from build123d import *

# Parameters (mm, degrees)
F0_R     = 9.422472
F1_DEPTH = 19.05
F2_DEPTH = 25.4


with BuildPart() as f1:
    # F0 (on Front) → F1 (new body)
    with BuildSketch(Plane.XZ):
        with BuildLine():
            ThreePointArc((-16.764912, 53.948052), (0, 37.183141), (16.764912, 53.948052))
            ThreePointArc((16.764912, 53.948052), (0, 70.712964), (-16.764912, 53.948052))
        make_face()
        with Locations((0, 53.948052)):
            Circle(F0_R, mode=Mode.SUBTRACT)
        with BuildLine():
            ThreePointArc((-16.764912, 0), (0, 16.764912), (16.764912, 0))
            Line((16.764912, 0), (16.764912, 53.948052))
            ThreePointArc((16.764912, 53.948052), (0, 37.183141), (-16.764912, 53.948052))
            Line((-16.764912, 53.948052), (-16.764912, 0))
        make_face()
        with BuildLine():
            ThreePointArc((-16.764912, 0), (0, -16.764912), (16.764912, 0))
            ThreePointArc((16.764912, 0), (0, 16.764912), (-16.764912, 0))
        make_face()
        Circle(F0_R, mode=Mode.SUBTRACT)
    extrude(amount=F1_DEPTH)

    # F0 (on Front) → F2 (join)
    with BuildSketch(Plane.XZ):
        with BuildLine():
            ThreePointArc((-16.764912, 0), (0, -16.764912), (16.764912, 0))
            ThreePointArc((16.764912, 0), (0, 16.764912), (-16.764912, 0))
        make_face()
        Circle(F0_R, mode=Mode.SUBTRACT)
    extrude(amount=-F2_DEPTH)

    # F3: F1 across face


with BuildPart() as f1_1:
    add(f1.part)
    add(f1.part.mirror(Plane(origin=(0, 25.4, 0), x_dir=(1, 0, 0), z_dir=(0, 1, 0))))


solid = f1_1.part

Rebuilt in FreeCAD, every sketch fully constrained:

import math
import FreeCAD as App
import Part
import Sketcher
from FreeCAD import Vector

doc = App.newDocument("Part")
params = doc.addObject("Spreadsheet::Sheet", "Params")
for row, (alias, value) in enumerate([
    ("pad1_length", "0.75 in"),
    ("pad2_length", "1 in"),
], start=1):
    params.set(f"A{row}", alias)
    params.set(f"B{row}", "=" + value)
    params.setAlias(f"B{row}", alias)

body = doc.addObject("PartDesign::Body", "Body")

# Sketch on XZ plane
sketch1 = body.newObject("Sketcher::SketchObject", "Sketch")
sketch1.AttachmentSupport = (doc.getObject("XZ_Plane"), [""])
sketch1.MapMode = "FlatFace"
sketch1.addGeometry([
    Part.ArcOfCircle(Part.Circle(Vector(0, 53.948052, 0), Vector(0, 0, 1), 16.764912), math.radians(0), math.radians(180)),  # 0
    Part.LineSegment(Vector(-16.764912, 53.948052, 0), Vector(-16.764912, 0, 0)),  # 1
    Part.ArcOfCircle(Part.Circle(Vector(0, 0, 0), Vector(0, 0, 1), 16.764912), math.radians(180), math.radians(360)),  # 2
    Part.LineSegment(Vector(16.764912, 0, 0), Vector(16.764912, 53.948052, 0)),  # 3
    Part.Circle(Vector(0, 0, 0), Vector(0, 0, 1), 9.422472),  # 4
    Part.Circle(Vector(0, 53.948052, 0), Vector(0, 0, 1), 9.422472),  # 5
], False)
sketch1.addConstraint([
    Sketcher.Constraint("Tangent", 0, 2, 1, 1),
    Sketcher.Constraint("Tangent", 1, 2, 2, 1),
    Sketcher.Constraint("Tangent", 2, 2, 3, 1),
    Sketcher.Constraint("Tangent", 3, 2, 0, 1),
    Sketcher.Constraint("Vertical", 1),
    Sketcher.Constraint("Vertical", 3),
    Sketcher.Constraint("Coincident", 2, 3, -1, 1),
    Sketcher.Constraint("Coincident", 4, 3, -1, 1),
    Sketcher.Constraint("Coincident", 5, 3, 0, 3),
    Sketcher.Constraint("Equal", 4, 5),
    Sketcher.Constraint("Radius", 0, 16.764912),
    Sketcher.Constraint("Diameter", 4, 18.844944),
    Sketcher.Constraint("DistanceY", 1, 2, 1, 1, 53.948052),
])
pad1 = body.newObject("PartDesign::Pad", "Pad")
pad1.Profile = sketch1
pad1.setExpression("Length", "Params.pad1_length")

# Sketch on XZ plane
sketch2 = body.newObject("Sketcher::SketchObject", "Sketch001")
sketch2.AttachmentSupport = (doc.getObject("XZ_Plane"), [""])
sketch2.MapMode = "FlatFace"
sketch2.addGeometry([
    Part.Circle(Vector(0, 0, 0), Vector(0, 0, 1), 16.764912),
    Part.Circle(Vector(0, 0, 0), Vector(0, 0, 1), 9.422472),
], False)
sketch2.addConstraint([
    Sketcher.Constraint("Coincident", 0, 3, -1, 1),
    Sketcher.Constraint("Coincident", 1, 3, -1, 1),
    Sketcher.Constraint("Diameter", 0, 33.529824),
    Sketcher.Constraint("Diameter", 1, 18.844944),
])
pad2 = body.newObject("PartDesign::Pad", "Pad001")
pad2.Profile = sketch2
pad2.setExpression("Length", "Params.pad2_length")
pad2.Reversed = True
body2 = doc.addObject("PartDesign::Body", "Body001")
doc.recompute()

body2.BaseFeature = body
doc.recompute()

mirroring = doc.addObject("Part::Mirroring", "Mirroring")
mirroring.Source = body
mirroring.Base = Vector(0, 25.4, 0)
mirroring.Normal = Vector(0, 1, 0)
body3 = doc.addObject("PartDesign::Body", "Body002")
body3.BaseFeature = mirroring
boolean = body2.newObject("PartDesign::Boolean", "Boolean")
boolean.Type = "Fuse"
boolean.addObjects([body3])
doc.recompute()
mirroring.Visibility = False

doc.recompute()
